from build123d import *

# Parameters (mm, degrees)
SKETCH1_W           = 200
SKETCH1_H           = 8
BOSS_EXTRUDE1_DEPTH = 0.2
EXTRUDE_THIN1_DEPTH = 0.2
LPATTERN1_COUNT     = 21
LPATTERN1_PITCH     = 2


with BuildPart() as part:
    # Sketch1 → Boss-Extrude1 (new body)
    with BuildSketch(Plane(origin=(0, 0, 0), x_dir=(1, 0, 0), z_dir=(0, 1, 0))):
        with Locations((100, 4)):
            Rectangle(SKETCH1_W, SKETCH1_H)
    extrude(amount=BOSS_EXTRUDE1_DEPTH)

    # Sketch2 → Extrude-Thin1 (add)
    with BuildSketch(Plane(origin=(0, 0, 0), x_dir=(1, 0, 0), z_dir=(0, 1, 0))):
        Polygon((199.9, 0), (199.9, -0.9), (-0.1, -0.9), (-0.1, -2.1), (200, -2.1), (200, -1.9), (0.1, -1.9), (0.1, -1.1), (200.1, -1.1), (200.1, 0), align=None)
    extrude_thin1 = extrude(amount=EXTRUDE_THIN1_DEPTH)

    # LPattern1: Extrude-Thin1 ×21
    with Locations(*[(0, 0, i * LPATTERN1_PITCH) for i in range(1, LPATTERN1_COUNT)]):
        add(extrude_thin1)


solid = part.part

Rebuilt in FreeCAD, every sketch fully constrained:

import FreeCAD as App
import Part
import Sketcher
Q = App.Units.Quantity

doc = App.newDocument("Part")
body = doc.addObject("PartDesign::Body", "Body")

# Sketch on XZ plane
sketch1 = body.newObject("Sketcher::SketchObject", "Sketch")
sketch1.AttachmentSupport = (doc.getObject("XZ_Plane"), [""])
sketch1.MapMode = "FlatFace"
sketch1.addGeometry(Part.LineSegment(App.Vector(0, -8, 0), App.Vector(0, 0, 0)), False)
sketch1.addGeometry(Part.LineSegment(App.Vector(0, 0, 0), App.Vector(200, 0, 0)), False)
sketch1.addGeometry(Part.LineSegment(App.Vector(200, 0, 0), App.Vector(200, -8, 0)), False)
sketch1.addGeometry(Part.LineSegment(App.Vector(200, -8, 0), App.Vector(0, -8, 0)), False)
sketch1.addConstraint(Sketcher.Constraint("Coincident", 0, 2, 1, 1))
sketch1.addConstraint(Sketcher.Constraint("Coincident", 1, 2, 2, 1))
sketch1.addConstraint(Sketcher.Constraint("Coincident", 2, 2, 3, 1))
sketch1.addConstraint(Sketcher.Constraint("Coincident", 3, 2, 0, 1))
sketch1.addConstraint(Sketcher.Constraint("Vertical", 0))
sketch1.addConstraint(Sketcher.Constraint("Horizontal", 1))
sketch1.addConstraint(Sketcher.Constraint("Vertical", 2))
sketch1.addConstraint(Sketcher.Constraint("Horizontal", 3))
sketch1.addConstraint(Sketcher.Constraint("Coincident", 0, 2, -1, 1))
sketch1.addConstraint(Sketcher.Constraint("DistanceX", 1, 1, 1, 2, Q("200 mm")))
sketch1.addConstraint(Sketcher.Constraint("DistanceY", 0, 1, 0, 2, Q("8 mm")))
pad1 = body.newObject("PartDesign::Pad", "Pad")
pad1.Profile = sketch1
pad1.Length = 0.2
pad1.Reversed = True

# Sketch on XZ plane
sketch2 = body.newObject("Sketcher::SketchObject", "Sketch001")
sketch2.AttachmentSupport = (doc.getObject("XZ_Plane"), [""])
sketch2.MapMode = "FlatFace"
sketch2.addGeometry(Part.LineSegment(App.Vector(199.9, 0, 0), App.Vector(199.9, 0.9, 0)), False)
sketch2.addGeometry(Part.LineSegment(App.Vector(199.9, 0.9, 0), App.Vector(-0.1, 0.9, 0)), False)
sketch2.addGeometry(Part.LineSegment(App.Vector(-0.1, 0.9, 0), App.Vector(-0.1, 2.1, 0)), False)
sketch2.addGeometry(Part.LineSegment(App.Vector(-0.1, 2.1, 0), App.Vector(200, 2.1, 0)), False)
sketch2.addGeometry(Part.LineSegment(App.Vector(200, 2.1, 0), App.Vector(200, 1.9, 0)), False)
sketch2.addGeometry(Part.LineSegment(App.Vector(200, 1.9, 0), App.Vector(0.1, 1.9, 0)), False)
sketch2.addGeometry(Part.LineSegment(App.Vector(0.1, 1.9, 0), App.Vector(0.1, 1.1, 0)), False)
sketch2.addGeometry(Part.LineSegment(App.Vector(0.1, 1.1, 0), App.Vector(200.1, 1.1, 0)), False)
sketch2.addGeometry(Part.LineSegment(App.Vector(200.1, 1.1, 0), App.Vector(200.1, 0, 0)), False)
sketch2.addGeometry(Part.LineSegment(App.Vector(200.1, 0, 0), App.Vector(199.9, 0, 0)), False)
sketch2.addConstraint(Sketcher.Constraint("Coincident", 0, 2, 1, 1))
sketch2.addConstraint(Sketcher.Constraint("Coincident", 1, 2, 2, 1))
sketch2.addConstraint(Sketcher.Constraint("Coincident", 2, 2, 3, 1))
sketch2.addConstraint(Sketcher.Constraint("Coincident", 3, 2, 4, 1))
sketch2.addConstraint(Sketcher.Constraint("Coincident", 4, 2, 5, 1))
sketch2.addConstraint(Sketcher.Constraint("Coincident", 5, 2, 6, 1))
sketch2.addConstraint(Sketcher.Constraint("Coincident", 6, 2, 7, 1))
sketch2.addConstraint(Sketcher.Constraint("Coincident", 7, 2, 8, 1))
sketch2.addConstraint(Sketcher.Constraint("Coincident", 8, 2, 9, 1))
sketch2.addConstraint(Sketcher.Constraint("Coincident", 9, 2, 0, 1))
sketch2.addConstraint(Sketcher.Constraint("Vertical", 0))
sketch2.addConstraint(Sketcher.Constraint("Horizontal", 1))
sketch2.addConstraint(Sketcher.Constraint("Vertical", 2))
sketch2.addConstraint(Sketcher.Constraint("Horizontal", 3))
sketch2.addConstraint(Sketcher.Constraint("Vertical", 4))
sketch2.addConstraint(Sketcher.Constraint("Horizontal", 5))
sketch2.addConstraint(Sketcher.Constraint("Vertical", 6))
sketch2.addConstraint(Sketcher.Constraint("Horizontal", 7))
sketch2.addConstraint(Sketcher.Constraint("Vertical", 8))
sketch2.addConstraint(Sketcher.Constraint("Horizontal", 9))
sketch2.addConstraint(Sketcher.Constraint("PointOnObject", 8, 2, -1))
sketch2.addConstraint(Sketcher.Constraint("Equal", 1, 7))
sketch2.addConstraint(Sketcher.Constraint("Equal", 9, 4))
sketch2.addConstraint(Sketcher.Constraint("DistanceX", 1, 2, 1, 1, Q("200 mm")))
sketch2.addConstraint(Sketcher.Constraint("DistanceX", 3, 1, 3, 2, Q("200.1 mm")))
sketch2.addConstraint(Sketcher.Constraint("DistanceX", 5, 2, 5, 1, Q("199.9 mm")))
sketch2.addConstraint(Sketcher.Constraint("DistanceY", 0, 1, 0, 2, Q("0.9 mm")))
sketch2.addConstraint(Sketcher.Constraint("DistanceY", 2, 1, 2, 2, Q("1.2 mm")))
sketch2.addConstraint(Sketcher.Constraint("DistanceY", 6, 2, 6, 1, Q("0.8 mm")))
sketch2.addConstraint(Sketcher.Constraint("DistanceX", -1, 1, 3, 2, Q("200 mm")))
pad2 = body.newObject("PartDesign::Pad", "Pad001")
pad2.Profile = sketch2
pad2.Length = 0.2
pad2.Reversed = True
doc.recompute()

linearpattern = body.newObject("PartDesign::LinearPattern", "LinearPattern")
linearpattern.Originals = [pad2]
linearpattern.Direction = (doc.getObject("Z_Axis"), [""])
linearpattern.Mode = "offset"
linearpattern.Offset = 2
linearpattern.Occurrences = 21
body.Tip = linearpattern

doc.recompute()
